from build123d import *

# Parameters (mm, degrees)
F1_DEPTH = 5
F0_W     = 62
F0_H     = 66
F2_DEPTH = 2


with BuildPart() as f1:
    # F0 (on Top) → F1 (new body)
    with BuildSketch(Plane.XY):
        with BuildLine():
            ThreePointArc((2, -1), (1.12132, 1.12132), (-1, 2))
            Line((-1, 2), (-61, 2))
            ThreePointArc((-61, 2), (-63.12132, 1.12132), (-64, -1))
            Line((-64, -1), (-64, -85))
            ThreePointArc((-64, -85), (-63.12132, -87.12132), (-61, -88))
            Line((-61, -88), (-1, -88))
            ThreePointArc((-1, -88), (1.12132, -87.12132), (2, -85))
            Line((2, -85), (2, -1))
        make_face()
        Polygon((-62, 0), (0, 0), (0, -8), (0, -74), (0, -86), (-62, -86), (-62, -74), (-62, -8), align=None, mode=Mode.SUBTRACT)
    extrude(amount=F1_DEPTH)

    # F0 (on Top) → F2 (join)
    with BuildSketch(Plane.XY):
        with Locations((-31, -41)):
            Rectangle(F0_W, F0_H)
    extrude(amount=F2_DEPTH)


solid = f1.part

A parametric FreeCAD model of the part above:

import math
import FreeCAD as App
import Part
import Sketcher

V = App.Vector
Q = App.Units.Quantity


def add_polygon(sketch, points):
    """Adds a closed chain of lines whose ends are joined by coincident constraints."""
    first, n = sketch.GeometryCount, len(points)
    for a, b in zip(points, points[1:] + points[:1]):
        sketch.addGeometry(Part.LineSegment(App.Vector(*a, 0), App.Vector(*b, 0)), False)
    for i in range(n):
        sketch.addConstraint(Sketcher.Constraint("Coincident", first + i, 2, first + (i + 1) % n, 1))

doc = App.newDocument("Part")
body = doc.addObject("PartDesign::Body", "Body")

# Sketch on XY plane
sketch1 = body.newObject("Sketcher::SketchObject", "Sketch")
sketch1.AttachmentSupport = (doc.getObject("XY_Plane"), [""])
sketch1.MapMode = "FlatFace"
sketch1.addGeometry(Part.ArcOfCircle(Part.Circle(V(-1.000001, -1.000001, 0), V(0, 0, 1), 3.000001), math.radians(0.000022), math.radians(89.999978)), False)  # 0
sketch1.addGeometry(Part.LineSegment(V(-1, 2, 0), V(-61, 2, 0)), False)  # 1
sketch1.addGeometry(Part.ArcOfCircle(Part.Circle(V(-60.999999, -1.000001, 0), V(0, 0, 1), 3.000001), math.radians(90.000022), math.radians(179.999978)), False)  # 2
sketch1.addGeometry(Part.LineSegment(V(-64, -1, 0), V(-64, -85, 0)), False)  # 3
sketch1.addGeometry(Part.ArcOfCircle(Part.Circle(V(-60.999999, -84.999999, 0), V(0, 0, 1), 3.000001), math.radians(-179.999978), math.radians(-90.000022)), False)  # 4
sketch1.addGeometry(Part.LineSegment(V(-61, -88, 0), V(-1, -88, 0)), False)  # 5
sketch1.addGeometry(Part.ArcOfCircle(Part.Circle(V(-1.000001, -84.999999, 0), V(0, 0, 1), 3.000001), math.radians(-89.999978), math.radians(-0.000022)), False)  # 6
sketch1.addGeometry(Part.LineSegment(V(2, -85, 0), V(2, -1, 0)), False)  # 7
add_polygon(sketch1, [(-62, -86), (-62, 0), (0, 0), (0, -86)])  # lines 8-11
sketch1.addConstraint([
    Sketcher.Constraint("Tangent", 0, 2, 1, 1),
    Sketcher.Constraint("Tangent", 1, 2, 2, 1),
    Sketcher.Constraint("Tangent", 2, 2, 3, 1),
    Sketcher.Constraint("Tangent", 3, 2, 4, 1),
    Sketcher.Constraint("Tangent", 4, 2, 5, 1),
    Sketcher.Constraint("Tangent", 5, 2, 6, 1),
    Sketcher.Constraint("Tangent", 6, 2, 7, 1),
    Sketcher.Constraint("Tangent", 7, 2, 0, 1),
    Sketcher.Constraint("Horizontal", 1),
    Sketcher.Constraint("Vertical", 3),
    Sketcher.Constraint("Horizontal", 5),
    Sketcher.Constraint("Vertical", 7),
    Sketcher.Constraint("Vertical", 8),
    Sketcher.Constraint("Horizontal", 9),
    Sketcher.Constraint("Vertical", 10),
    Sketcher.Constraint("Horizontal", 11),
    Sketcher.Constraint("Coincident", 9, 2, -1, 1),
    Sketcher.Constraint("Equal", 0, 2),
    Sketcher.Constraint("Equal", 2, 4),
    Sketcher.Constraint("Equal", 4, 6),
    Sketcher.Constraint("Radius", 0, Q("3.000001 mm")),
    Sketcher.Constraint("DistanceX", 1, 2, 1, 1, Q("60 mm")),
    Sketcher.Constraint("DistanceX", 9, 1, 9, 2, Q("62 mm")),
    Sketcher.Constraint("DistanceY", 3, 2, 3, 1, Q("84 mm")),
    Sketcher.Constraint("DistanceY", 8, 1, 8, 2, Q("86 mm")),
    Sketcher.Constraint("DistanceX", 0, 3, -1, 1, Q("1.000001 mm")),
    Sketcher.Constraint("DistanceY", 0, 3, -1, 1, Q("1.000001 mm")),
])
pad1 = body.newObject("PartDesign::Pad", "Pad")
pad1.Profile = sketch1
pad1.Length = 5

# Sketch on XY plane
sketch2 = body.newObject("Sketcher::SketchObject", "Sketch001")
sketch2.AttachmentSupport = (doc.getObject("XY_Plane"), [""])
sketch2.MapMode = "FlatFace"
add_polygon(sketch2, [(-62, -8), (-62, -74), (0, -74), (0, -8)])  # lines 0-3
sketch2.addConstraint([
    Sketcher.Constraint("Vertical", 0),
    Sketcher.Constraint("Horizontal", 1),
    Sketcher.Constraint("Vertical", 2),
    Sketcher.Constraint("Horizontal", 3),
    Sketcher.Constraint("PointOnObject", 1, 2, -2),
    Sketcher.Constraint("DistanceX", 1, 1, 1, 2, Q("62 mm")),
    Sketcher.Constraint("DistanceY", 0, 2, 0, 1, Q("66 mm")),
    Sketcher.Constraint("DistanceY", 0, 2, -1, 1, Q("74 mm")),
])
pad2 = body.newObject("PartDesign::Pad", "Pad001")
pad2.Profile = sketch2
pad2.Length = 2

doc.recompute()
